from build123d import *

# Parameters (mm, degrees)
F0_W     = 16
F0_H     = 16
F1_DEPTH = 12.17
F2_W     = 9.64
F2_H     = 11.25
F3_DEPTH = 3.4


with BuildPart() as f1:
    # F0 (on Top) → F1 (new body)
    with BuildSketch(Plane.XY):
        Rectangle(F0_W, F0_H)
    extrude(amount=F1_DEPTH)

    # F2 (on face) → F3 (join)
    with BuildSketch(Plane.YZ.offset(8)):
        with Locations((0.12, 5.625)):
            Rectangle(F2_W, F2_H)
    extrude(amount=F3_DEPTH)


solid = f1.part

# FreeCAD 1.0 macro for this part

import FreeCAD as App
import Part
import Sketcher

V = App.Vector
Q = App.Units.Quantity


def add_polygon(sketch, points):
    """Adds a closed chain of lines whose ends are joined by coincident constraints."""
    first, n = sketch.GeometryCount, len(points)
    for a, b in zip(points, points[1:] + points[:1]):
        sketch.addGeometry(Part.LineSegment(App.Vector(*a, 0), App.Vector(*b, 0)), False)
    for i in range(n):
        sketch.addConstraint(Sketcher.Constraint("Coincident", first + i, 2, first + (i + 1) % n, 1))

doc = App.newDocument("Part")
body = doc.addObject("PartDesign::Body", "Body")

sketch1 = body.newObject("Sketcher::SketchObject", "Sketch")
sketch1.AttachmentSupport = (doc.getObject("XY_Plane"), [""])
sketch1.MapMode = "FlatFace"
add_polygon(sketch1, [(-8, 8), (-8, -8), (8, -8), (8, 8)])
sketch1.addConstraint([
    Sketcher.Constraint("Vertical", 0),
    Sketcher.Constraint("Horizontal", 1),
    Sketcher.Constraint("Vertical", 2),
    Sketcher.Constraint("Horizontal", 3),
    Sketcher.Constraint("Symmetric", 0, 2, 2, 2, -1, 1),
    Sketcher.Constraint("Equal", 3, 0),
    Sketcher.Constraint("DistanceX", 1, 1, 1, 2, Q("16 mm")),
])
pad1 = body.newObject("PartDesign::Pad", "Pad")
pad1.Profile = sketch1
pad1.Length = 12.17

sketch2 = body.newObject("Sketcher::SketchObject", "Sketch001")
sketch2.AttachmentSupport = (doc.getObject("YZ_Plane"), [""])
sketch2.MapMode = "FlatFace"
sketch2.AttachmentOffset = App.Placement(V(0, 0, 8), App.Rotation())
add_polygon(sketch2, [(-5, 11), (-5, 0), (5, 0), (5, 11)])
sketch2.addConstraint([
    Sketcher.Constraint("Vertical", 0),
    Sketcher.Constraint("Horizontal", 1),
    Sketcher.Constraint("Vertical", 2),
    Sketcher.Constraint("Horizontal", 3),
    Sketcher.Constraint("PointOnObject", 0, 2, -1),
    Sketcher.Constraint("DistanceX", 1, 1, 1, 2, Q("9.64 mm")),
    Sketcher.Constraint("DistanceY", 0, 2, 0, 1, Q("11.25 mm")),
    Sketcher.Constraint("DistanceX", 0, 2, -1, 1, Q("4.7 mm")),
])
pad2 = body.newObject("PartDesign::Pad", "Pad001")
pad2.Profile = sketch2
pad2.Length = 3.4

doc.recompute()
